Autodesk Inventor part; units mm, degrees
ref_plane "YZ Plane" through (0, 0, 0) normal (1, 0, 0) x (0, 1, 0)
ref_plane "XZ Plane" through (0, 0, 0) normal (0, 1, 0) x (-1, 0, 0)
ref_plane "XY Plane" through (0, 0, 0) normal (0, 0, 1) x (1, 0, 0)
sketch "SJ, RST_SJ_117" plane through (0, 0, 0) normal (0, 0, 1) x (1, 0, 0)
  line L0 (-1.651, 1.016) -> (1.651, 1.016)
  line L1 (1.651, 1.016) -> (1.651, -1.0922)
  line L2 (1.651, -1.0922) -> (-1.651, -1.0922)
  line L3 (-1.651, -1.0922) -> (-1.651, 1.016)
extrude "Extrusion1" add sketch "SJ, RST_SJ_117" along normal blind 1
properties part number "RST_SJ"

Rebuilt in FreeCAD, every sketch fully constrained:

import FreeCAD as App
import Part
import Sketcher
from FreeCAD import Vector
Q = App.Units.Quantity

doc = App.newDocument("Part")
body = doc.addObject("PartDesign::Body", "Body")

sketch1 = body.newObject("Sketcher::SketchObject", "Sketch")
sketch1.AttachmentSupport = (doc.getObject("XY_Plane"), [""])
sketch1.MapMode = "FlatFace"
sketch1.addGeometry(Part.LineSegment(Vector(1.7, 1, 0), Vector(-1.7, 1, 0)), False)
sketch1.addGeometry(Part.LineSegment(Vector(-1.7, 1, 0), Vector(-1.7, -1.1, 0)), False)
sketch1.addGeometry(Part.LineSegment(Vector(-1.7, -1.1, 0), Vector(1.7, -1.1, 0)), False)
sketch1.addGeometry(Part.LineSegment(Vector(1.7, -1.1, 0), Vector(1.7, 1, 0)), False)
sketch1.addConstraint(Sketcher.Constraint("Coincident", 0, 2, 1, 1))
sketch1.addConstraint(Sketcher.Constraint("Coincident", 1, 2, 2, 1))
sketch1.addConstraint(Sketcher.Constraint("Coincident", 2, 2, 3, 1))
sketch1.addConstraint(Sketcher.Constraint("Coincident", 3, 2, 0, 1))
sketch1.addConstraint(Sketcher.Constraint("Horizontal", 0))
sketch1.addConstraint(Sketcher.Constraint("Vertical", 1))
sketch1.addConstraint(Sketcher.Constraint("Horizontal", 2))
sketch1.addConstraint(Sketcher.Constraint("Vertical", 3))
sketch1.addConstraint(Sketcher.Constraint("DistanceX", 0, 2, 0, 1, Q("0.13 in")))
sketch1.addConstraint(Sketcher.Constraint("DistanceY", 1, 2, 1, 1, Q("0.083 in")))
sketch1.addConstraint(Sketcher.Constraint("DistanceY", -1, 1, 0, 2, Q("0.04 in")))
sketch1.addConstraint(Sketcher.Constraint("DistanceX", 0, 2, -1, 1, Q("0.065 in")))
pad1 = body.newObject("PartDesign::Pad", "Pad")
pad1.Profile = sketch1
pad1.Length = 1

doc.recompute()
